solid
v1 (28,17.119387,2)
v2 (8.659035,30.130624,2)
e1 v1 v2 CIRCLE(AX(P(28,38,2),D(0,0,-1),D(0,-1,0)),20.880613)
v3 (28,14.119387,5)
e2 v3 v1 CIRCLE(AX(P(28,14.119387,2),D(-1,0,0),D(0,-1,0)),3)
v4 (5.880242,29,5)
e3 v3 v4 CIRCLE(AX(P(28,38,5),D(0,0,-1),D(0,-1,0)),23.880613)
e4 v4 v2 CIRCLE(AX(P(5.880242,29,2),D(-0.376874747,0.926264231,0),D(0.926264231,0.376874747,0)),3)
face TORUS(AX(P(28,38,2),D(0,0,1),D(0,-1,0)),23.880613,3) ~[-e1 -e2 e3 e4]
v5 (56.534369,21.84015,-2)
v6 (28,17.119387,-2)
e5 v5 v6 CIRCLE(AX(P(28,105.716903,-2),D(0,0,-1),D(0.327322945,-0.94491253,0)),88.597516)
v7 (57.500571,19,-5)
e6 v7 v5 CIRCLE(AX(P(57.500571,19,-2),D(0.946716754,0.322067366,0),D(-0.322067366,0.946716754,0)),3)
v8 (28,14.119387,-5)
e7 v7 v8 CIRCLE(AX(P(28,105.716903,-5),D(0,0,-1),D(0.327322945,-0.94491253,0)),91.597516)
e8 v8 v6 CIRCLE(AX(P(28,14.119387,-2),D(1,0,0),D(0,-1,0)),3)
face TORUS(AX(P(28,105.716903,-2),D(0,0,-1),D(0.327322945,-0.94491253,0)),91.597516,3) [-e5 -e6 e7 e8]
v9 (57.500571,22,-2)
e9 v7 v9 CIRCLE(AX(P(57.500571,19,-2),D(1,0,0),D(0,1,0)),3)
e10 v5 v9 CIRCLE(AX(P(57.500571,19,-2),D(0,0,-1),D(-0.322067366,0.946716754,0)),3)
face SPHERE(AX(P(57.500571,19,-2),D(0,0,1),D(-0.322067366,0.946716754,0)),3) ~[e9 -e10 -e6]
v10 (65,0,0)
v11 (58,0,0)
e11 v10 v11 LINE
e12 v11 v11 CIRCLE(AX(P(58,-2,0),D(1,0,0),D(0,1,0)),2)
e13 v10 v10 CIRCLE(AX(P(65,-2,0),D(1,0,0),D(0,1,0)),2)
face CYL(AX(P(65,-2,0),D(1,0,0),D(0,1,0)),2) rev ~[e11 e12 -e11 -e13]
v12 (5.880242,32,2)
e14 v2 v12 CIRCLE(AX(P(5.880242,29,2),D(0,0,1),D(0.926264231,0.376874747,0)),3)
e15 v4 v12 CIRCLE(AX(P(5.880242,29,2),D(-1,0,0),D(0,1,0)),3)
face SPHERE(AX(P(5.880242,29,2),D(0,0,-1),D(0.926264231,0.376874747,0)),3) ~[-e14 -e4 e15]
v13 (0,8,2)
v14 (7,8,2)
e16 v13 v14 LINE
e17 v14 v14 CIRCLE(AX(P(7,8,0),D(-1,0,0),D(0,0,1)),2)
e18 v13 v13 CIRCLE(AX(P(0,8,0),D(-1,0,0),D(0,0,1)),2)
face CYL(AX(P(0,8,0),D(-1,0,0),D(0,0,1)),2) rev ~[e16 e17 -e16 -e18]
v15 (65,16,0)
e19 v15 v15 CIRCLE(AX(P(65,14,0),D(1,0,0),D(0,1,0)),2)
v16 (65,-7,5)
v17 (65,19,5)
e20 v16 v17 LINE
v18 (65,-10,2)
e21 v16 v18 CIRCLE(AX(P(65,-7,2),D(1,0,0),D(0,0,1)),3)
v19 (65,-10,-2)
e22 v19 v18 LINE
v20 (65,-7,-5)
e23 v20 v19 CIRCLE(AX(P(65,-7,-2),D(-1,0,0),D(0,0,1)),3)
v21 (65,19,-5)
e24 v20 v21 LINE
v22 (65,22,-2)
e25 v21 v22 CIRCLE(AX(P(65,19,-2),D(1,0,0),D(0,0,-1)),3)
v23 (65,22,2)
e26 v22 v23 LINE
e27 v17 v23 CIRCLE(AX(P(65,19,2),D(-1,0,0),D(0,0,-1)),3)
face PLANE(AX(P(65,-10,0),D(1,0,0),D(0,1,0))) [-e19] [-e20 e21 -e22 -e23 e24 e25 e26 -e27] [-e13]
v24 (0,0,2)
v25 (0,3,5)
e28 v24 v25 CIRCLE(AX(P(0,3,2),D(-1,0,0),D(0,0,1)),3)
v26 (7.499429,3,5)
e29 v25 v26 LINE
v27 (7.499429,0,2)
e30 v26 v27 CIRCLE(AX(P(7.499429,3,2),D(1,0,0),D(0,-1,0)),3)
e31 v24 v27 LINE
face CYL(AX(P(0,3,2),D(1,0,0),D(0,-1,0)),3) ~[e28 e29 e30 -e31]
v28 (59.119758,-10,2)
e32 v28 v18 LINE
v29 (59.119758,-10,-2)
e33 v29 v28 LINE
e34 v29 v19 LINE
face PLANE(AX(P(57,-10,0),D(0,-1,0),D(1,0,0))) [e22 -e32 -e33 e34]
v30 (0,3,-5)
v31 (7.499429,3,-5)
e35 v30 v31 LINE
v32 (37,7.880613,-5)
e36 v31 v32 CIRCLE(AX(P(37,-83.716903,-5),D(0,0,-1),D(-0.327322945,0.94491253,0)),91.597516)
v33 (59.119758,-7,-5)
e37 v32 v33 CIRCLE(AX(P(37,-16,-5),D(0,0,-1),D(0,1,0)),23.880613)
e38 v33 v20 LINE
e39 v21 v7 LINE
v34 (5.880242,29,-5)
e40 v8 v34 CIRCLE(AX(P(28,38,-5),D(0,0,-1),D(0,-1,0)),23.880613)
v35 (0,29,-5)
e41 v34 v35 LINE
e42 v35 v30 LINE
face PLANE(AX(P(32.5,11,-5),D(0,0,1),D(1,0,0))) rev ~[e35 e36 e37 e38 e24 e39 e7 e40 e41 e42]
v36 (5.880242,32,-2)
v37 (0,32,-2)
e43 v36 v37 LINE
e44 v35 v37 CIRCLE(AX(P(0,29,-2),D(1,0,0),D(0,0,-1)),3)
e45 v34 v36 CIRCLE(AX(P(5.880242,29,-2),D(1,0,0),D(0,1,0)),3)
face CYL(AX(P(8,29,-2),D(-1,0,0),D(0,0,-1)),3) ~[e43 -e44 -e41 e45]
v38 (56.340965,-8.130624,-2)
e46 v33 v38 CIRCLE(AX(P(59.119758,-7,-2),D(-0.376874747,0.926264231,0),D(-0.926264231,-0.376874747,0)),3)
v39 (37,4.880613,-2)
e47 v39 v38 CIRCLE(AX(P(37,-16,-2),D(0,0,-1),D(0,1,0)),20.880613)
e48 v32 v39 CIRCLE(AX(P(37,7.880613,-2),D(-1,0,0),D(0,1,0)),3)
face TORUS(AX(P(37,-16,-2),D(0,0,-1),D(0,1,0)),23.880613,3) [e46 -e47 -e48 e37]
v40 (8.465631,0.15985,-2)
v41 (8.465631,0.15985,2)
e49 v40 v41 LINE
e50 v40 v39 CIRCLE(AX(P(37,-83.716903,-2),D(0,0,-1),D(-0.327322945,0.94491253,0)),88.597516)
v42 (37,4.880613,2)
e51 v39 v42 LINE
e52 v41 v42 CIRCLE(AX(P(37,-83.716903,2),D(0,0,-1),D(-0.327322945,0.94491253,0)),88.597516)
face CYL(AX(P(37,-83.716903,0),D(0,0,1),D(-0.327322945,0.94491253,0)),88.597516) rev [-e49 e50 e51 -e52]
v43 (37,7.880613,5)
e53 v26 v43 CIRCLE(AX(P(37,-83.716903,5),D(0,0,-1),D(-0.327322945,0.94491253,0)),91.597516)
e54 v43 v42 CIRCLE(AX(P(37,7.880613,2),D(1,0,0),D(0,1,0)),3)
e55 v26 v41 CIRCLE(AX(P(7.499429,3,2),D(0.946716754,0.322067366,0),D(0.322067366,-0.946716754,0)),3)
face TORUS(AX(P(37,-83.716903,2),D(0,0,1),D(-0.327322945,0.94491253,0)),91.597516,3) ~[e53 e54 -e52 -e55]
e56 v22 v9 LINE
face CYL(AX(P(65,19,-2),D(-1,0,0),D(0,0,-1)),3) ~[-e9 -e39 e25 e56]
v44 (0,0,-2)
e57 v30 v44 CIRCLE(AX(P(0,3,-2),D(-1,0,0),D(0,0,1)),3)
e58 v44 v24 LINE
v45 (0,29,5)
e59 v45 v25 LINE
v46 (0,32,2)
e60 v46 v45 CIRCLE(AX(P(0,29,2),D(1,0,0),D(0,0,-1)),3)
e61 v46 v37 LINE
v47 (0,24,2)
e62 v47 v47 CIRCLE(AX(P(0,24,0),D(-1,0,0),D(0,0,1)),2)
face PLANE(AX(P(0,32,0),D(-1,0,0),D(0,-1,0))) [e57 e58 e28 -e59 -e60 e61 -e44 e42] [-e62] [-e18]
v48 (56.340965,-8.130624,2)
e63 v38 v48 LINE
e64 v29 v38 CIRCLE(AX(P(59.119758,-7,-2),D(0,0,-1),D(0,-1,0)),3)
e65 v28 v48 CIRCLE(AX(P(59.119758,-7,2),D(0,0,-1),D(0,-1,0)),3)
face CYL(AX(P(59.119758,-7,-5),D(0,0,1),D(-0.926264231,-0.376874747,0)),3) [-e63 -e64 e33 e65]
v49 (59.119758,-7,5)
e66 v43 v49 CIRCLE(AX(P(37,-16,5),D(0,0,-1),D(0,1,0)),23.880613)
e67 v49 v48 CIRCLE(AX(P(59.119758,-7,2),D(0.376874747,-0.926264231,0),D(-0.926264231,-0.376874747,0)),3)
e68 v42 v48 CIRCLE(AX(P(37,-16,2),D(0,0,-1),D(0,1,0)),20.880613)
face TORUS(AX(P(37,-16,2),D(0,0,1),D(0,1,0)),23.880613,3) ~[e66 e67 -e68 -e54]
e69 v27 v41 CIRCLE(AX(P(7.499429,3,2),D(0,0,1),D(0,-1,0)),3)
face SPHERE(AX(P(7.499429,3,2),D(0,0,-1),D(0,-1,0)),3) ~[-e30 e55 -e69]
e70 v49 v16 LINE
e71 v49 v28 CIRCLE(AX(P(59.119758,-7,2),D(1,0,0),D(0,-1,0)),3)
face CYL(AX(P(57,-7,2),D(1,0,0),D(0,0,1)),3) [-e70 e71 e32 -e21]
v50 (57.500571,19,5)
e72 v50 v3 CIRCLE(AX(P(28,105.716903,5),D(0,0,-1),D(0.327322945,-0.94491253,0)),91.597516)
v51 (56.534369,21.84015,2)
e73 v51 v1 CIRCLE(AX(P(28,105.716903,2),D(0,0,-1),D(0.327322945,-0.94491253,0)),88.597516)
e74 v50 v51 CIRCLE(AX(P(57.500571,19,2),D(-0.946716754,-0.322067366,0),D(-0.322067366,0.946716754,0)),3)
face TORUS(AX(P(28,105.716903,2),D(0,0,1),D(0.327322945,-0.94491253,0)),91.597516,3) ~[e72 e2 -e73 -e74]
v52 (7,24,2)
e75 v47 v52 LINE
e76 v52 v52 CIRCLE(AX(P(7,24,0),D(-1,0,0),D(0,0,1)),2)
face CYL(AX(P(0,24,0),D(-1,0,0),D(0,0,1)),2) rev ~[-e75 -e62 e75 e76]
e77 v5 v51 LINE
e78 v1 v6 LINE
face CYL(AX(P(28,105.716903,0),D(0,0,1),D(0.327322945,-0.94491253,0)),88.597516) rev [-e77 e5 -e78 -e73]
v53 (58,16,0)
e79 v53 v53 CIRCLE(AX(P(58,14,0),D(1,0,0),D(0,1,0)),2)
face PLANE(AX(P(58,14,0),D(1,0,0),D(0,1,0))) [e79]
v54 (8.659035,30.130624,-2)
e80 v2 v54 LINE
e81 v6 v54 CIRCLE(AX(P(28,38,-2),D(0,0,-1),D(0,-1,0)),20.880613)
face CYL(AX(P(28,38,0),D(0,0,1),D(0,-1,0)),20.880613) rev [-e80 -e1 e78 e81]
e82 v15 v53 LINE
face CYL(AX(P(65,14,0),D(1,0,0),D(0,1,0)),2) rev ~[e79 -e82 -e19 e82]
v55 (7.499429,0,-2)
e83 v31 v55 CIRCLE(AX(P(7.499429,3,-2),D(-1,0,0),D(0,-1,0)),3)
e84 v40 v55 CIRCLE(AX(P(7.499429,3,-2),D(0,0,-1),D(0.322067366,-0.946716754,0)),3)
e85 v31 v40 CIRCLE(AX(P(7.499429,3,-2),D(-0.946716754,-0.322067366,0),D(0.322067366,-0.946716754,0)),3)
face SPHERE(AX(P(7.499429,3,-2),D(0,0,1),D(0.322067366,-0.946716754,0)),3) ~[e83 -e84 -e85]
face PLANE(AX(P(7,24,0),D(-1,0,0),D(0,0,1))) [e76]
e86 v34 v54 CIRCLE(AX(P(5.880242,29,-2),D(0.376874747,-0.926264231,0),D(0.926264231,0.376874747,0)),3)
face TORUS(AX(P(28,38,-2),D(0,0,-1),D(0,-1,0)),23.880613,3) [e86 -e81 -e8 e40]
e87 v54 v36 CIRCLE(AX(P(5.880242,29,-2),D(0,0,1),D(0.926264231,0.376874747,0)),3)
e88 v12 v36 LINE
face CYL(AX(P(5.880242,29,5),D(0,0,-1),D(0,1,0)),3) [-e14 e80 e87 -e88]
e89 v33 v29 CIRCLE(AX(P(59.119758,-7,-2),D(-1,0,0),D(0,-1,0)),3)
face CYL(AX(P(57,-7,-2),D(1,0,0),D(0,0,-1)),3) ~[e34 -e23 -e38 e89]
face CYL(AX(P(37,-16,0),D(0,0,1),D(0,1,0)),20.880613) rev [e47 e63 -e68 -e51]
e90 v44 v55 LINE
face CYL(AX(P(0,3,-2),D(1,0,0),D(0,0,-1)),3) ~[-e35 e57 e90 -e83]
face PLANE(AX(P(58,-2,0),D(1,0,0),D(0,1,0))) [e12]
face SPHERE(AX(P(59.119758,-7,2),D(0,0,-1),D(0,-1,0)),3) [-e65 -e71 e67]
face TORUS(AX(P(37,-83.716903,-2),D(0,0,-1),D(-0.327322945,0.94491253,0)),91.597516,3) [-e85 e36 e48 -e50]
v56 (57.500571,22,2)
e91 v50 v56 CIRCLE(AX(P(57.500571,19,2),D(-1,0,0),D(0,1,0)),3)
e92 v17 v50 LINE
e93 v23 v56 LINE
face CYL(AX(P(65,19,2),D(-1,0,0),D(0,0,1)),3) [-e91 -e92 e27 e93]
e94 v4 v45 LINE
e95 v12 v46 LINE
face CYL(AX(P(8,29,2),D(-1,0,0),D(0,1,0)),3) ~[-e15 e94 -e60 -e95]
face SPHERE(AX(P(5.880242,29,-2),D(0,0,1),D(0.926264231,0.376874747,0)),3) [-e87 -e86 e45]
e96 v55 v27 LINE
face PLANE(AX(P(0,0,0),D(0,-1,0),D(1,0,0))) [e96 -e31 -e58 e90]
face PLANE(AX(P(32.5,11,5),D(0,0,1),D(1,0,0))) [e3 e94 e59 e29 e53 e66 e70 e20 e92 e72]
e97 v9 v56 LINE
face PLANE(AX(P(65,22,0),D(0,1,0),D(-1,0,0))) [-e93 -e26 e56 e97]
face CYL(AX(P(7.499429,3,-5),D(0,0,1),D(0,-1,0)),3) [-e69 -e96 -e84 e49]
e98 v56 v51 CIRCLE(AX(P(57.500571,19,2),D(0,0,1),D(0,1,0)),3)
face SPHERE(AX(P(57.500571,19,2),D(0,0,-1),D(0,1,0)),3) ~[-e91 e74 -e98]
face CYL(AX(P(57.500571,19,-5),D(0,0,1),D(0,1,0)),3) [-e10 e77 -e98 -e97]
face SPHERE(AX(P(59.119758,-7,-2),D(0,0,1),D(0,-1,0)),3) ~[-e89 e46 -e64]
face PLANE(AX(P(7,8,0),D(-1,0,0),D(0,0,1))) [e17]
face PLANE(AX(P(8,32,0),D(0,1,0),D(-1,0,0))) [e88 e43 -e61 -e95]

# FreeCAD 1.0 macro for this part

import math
import FreeCAD as App
import Part
import Sketcher
Q = App.Units.Quantity


def edges_at(feature, points):
    """Names of the edges that pass closest to the given points."""
    edges = feature.Shape.Edges
    near = lambda p: min(range(len(edges)), key=lambda i: edges[i].distToShape(Part.Vertex(*p))[0])
    return sorted({f"Edge{near(p) + 1}" for p in points})

doc = App.newDocument("Part")
body = doc.addObject("PartDesign::Body", "Body")

# Sketch on XY plane
sketch1 = body.newObject("Sketcher::SketchObject", "Sketch")
sketch1.AttachmentSupport = (doc.getObject("XY_Plane"), [""])
sketch1.MapMode = "FlatFace"
sketch1.addGeometry([
    Part.LineSegment(App.Vector(0, 32, 0), App.Vector(0, 0, 0)),  # 0
    Part.LineSegment(App.Vector(0, 0, 0), App.Vector(8, 0, 0)),  # 1
    Part.ArcOfCircle(Part.Circle(App.Vector(37, -83.716903, 0), App.Vector(0, 0, 1), 88.597516), math.radians(90), math.radians(109.106369)),  # 2
    Part.ArcOfCircle(Part.Circle(App.Vector(37, -16, 0), App.Vector(0, 0, 1), 20.880613), math.radians(16.699244), math.radians(90)),  # 3
    Part.LineSegment(App.Vector(57, -10, 0), App.Vector(65, -10, 0)),  # 4
    Part.LineSegment(App.Vector(65, -10, 0), App.Vector(65, 22, 0)),  # 5
    Part.LineSegment(App.Vector(65, 22, 0), App.Vector(57, 22, 0)),  # 6
    Part.ArcOfCircle(Part.Circle(App.Vector(28, 105.716903, 0), App.Vector(0, 0, 1), 88.597516), math.radians(-90), math.radians(-70.893631)),  # 7
    Part.ArcOfCircle(Part.Circle(App.Vector(28, 38, 0), App.Vector(0, 0, 1), 20.880613), math.radians(-163.300756), math.radians(-90)),  # 8
    Part.LineSegment(App.Vector(8, 32, 0), App.Vector(0, 32, 0)),  # 9
], False)
sketch1.addConstraint([
    Sketcher.Constraint("Coincident", 0, 2, 1, 1),
    Sketcher.Constraint("Coincident", 1, 2, 2, 2),
    Sketcher.Constraint("Tangent", 2, 1, 3, 2),
    Sketcher.Constraint("Coincident", 3, 1, 4, 1),
    Sketcher.Constraint("Coincident", 4, 2, 5, 1),
    Sketcher.Constraint("Coincident", 5, 2, 6, 1),
    Sketcher.Constraint("Coincident", 6, 2, 7, 2),
    Sketcher.Constraint("Tangent", 7, 1, 8, 2),
    Sketcher.Constraint("Coincident", 8, 1, 9, 1),
    Sketcher.Constraint("Coincident", 9, 2, 0, 1),
    Sketcher.Constraint("Vertical", 0),
    Sketcher.Constraint("Horizontal", 1),
    Sketcher.Constraint("Horizontal", 4),
    Sketcher.Constraint("Vertical", 5),
    Sketcher.Constraint("Horizontal", 6),
    Sketcher.Constraint("Horizontal", 9),
    Sketcher.Constraint("Coincident", 0, 2, -1, 1),
    Sketcher.Constraint("Equal", 2, 7),
    Sketcher.Constraint("Equal", 3, 8),
    Sketcher.Constraint("Vertical", 2, 3, 3, 3),
    Sketcher.Constraint("Vertical", 7, 3, 8, 3),
    Sketcher.Constraint("Vertical", 3, 1, 6, 2),
    Sketcher.Constraint("Vertical", 1, 2, 8, 1),
    Sketcher.Constraint("Equal", 1, 4),
    Sketcher.Constraint("Equal", 0, 5),
    Sketcher.Constraint("DistanceX", 1, 1, 1, 2, Q("8 mm")),
    Sketcher.Constraint("DistanceY", 0, 2, 0, 1, Q("32 mm")),
    Sketcher.Constraint("DistanceX", -1, 1, 2, 3, Q("37 mm")),
    Sketcher.Constraint("DistanceY", 3, 3, -1, 1, Q("16 mm")),
    Sketcher.Constraint("DistanceX", -1, 1, 7, 3, Q("28 mm")),
    Sketcher.Constraint("DistanceY", -1, 1, 8, 3, Q("38 mm")),
])
pad1 = body.newObject("PartDesign::Pad", "Pad")
pad1.Profile = sketch1
pad1.Length = 10
pad1.Midplane = True

# Sketch on YZ plane
sketch2 = body.newObject("Sketcher::SketchObject", "Sketch001")
sketch2.AttachmentSupport = (doc.getObject("YZ_Plane"), [""])
sketch2.MapMode = "FlatFace"
sketch2.AttachmentOffset = App.Placement(App.Vector(0, 0, 65), App.Rotation())
sketch2.addGeometry([
    Part.Circle(App.Vector(-2, 0, 0), App.Vector(0, 0, 1), 2),
    Part.Circle(App.Vector(14, 0, 0), App.Vector(0, 0, 1), 2),
], False)
sketch2.addConstraint([
    Sketcher.Constraint("Equal", 0, 1),
    Sketcher.Constraint("PointOnObject", 0, 3, -1),
    Sketcher.Constraint("PointOnObject", 1, 3, -1),
    Sketcher.Constraint("Diameter", 0, Q("4 mm")),
    Sketcher.Constraint("DistanceX", 0, 3, -1, 1, Q("2 mm")),
    Sketcher.Constraint("DistanceX", -1, 1, 1, 3, Q("14 mm")),
])
pocket1 = body.newObject("PartDesign::Pocket", "Pocket")
pocket1.Profile = sketch2
pocket1.Length = 7

# Sketch on YZ plane
sketch3 = body.newObject("Sketcher::SketchObject", "Sketch002")
sketch3.AttachmentSupport = (doc.getObject("YZ_Plane"), [""])
sketch3.MapMode = "FlatFace"
sketch3.addGeometry([
    Part.Circle(App.Vector(8, 0, 0), App.Vector(0, 0, 1), 2),
    Part.Circle(App.Vector(24, 0, 0), App.Vector(0, 0, 1), 2),
], False)
sketch3.addConstraint([
    Sketcher.Constraint("Equal", 0, 1),
    Sketcher.Constraint("PointOnObject", 0, 3, -1),
    Sketcher.Constraint("PointOnObject", 1, 3, -1),
    Sketcher.Constraint("Diameter", 0, Q("4 mm")),
    Sketcher.Constraint("DistanceX", -1, 1, 0, 3, Q("8 mm")),
    Sketcher.Constraint("DistanceX", -1, 1, 1, 3, Q("24 mm")),
])
pocket2 = body.newObject("PartDesign::Pocket", "Pocket001")
pocket2.Profile = sketch3
pocket2.Length = 7
pocket2.Reversed = True
doc.recompute()

fillet = body.newObject("PartDesign::Fillet", "Fillet")
fillet.Base = (pocket2, edges_at(pocket2, [
    (15.536, 21.248, -5),
    (42.704, 18.348, -5),
    (61, 22, -5),
    (61, -10, -5),
    (49.464, 0.752, -5),
    (22.296, 3.652, -5),
    (4, 0, 5),
    (4, 0, -5),
    (4, 32, -5),
    (22.296, 3.652, 5),
    (8, 32, 0),
    (57, 22, 0),
    (57, -10, 0),
    (8, 0, 0),
    (49.464, 0.752, 5),
    (61, -10, 5),
    (61, 22, 5),
    (42.704, 18.348, 5),
    (15.536, 21.248, 5),
    (4, 32, 5),
]))
fillet.Radius = 3

doc.recompute()
